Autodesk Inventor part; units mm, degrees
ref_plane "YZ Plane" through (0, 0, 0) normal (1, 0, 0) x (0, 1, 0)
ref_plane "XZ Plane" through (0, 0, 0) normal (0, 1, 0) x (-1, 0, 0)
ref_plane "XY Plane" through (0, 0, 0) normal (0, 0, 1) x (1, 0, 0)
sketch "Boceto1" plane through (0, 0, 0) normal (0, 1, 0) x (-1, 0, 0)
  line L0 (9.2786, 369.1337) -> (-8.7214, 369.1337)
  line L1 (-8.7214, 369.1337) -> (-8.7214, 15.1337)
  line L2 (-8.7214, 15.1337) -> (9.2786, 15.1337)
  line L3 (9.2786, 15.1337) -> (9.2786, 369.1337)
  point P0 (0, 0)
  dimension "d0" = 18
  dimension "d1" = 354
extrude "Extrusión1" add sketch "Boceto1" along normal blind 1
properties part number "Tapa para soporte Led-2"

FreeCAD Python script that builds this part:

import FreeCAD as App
import Part
import Sketcher

V = App.Vector

doc = App.newDocument("Part")
params = doc.addObject("Spreadsheet::Sheet", "Params")
for row, (alias, value) in enumerate([
    ("sketch1_width", "18 mm"),
    ("sketch1_height", "354 mm"),
    ("pad1_length", "1 mm"),
], start=1):
    params.set(f"A{row}", alias)
    params.set(f"B{row}", "=" + value)
    params.setAlias(f"B{row}", alias)

body = doc.addObject("PartDesign::Body", "Body")

sketch1 = body.newObject("Sketcher::SketchObject", "Sketch")
sketch1.AttachmentSupport = (doc.getObject("XZ_Plane"), [""])
sketch1.MapMode = "FlatFace"
sketch1.addGeometry(Part.LineSegment(V(-9.2786, 15.1337, 0), V(-9.2786, 369.1337, 0)), False)
sketch1.addGeometry(Part.LineSegment(V(-9.2786, 369.1337, 0), V(8.7214, 369.1337, 0)), False)
sketch1.addGeometry(Part.LineSegment(V(8.7214, 369.1337, 0), V(8.7214, 15.1337, 0)), False)
sketch1.addGeometry(Part.LineSegment(V(8.7214, 15.1337, 0), V(-9.2786, 15.1337, 0)), False)
sketch1.addConstraint(Sketcher.Constraint("Coincident", 0, 2, 1, 1))
sketch1.addConstraint(Sketcher.Constraint("Coincident", 1, 2, 2, 1))
sketch1.addConstraint(Sketcher.Constraint("Coincident", 2, 2, 3, 1))
sketch1.addConstraint(Sketcher.Constraint("Coincident", 3, 2, 0, 1))
sketch1.addConstraint(Sketcher.Constraint("Vertical", 0))
sketch1.addConstraint(Sketcher.Constraint("Horizontal", 1))
sketch1.addConstraint(Sketcher.Constraint("Vertical", 2))
sketch1.addConstraint(Sketcher.Constraint("Horizontal", 3))
sketch1.addConstraint(Sketcher.Constraint("DistanceX", 1, 1, 1, 2, 18.0))
sketch1.addConstraint(Sketcher.Constraint("DistanceY", 0, 1, 0, 2, 354.0))
sketch1.addConstraint(Sketcher.Constraint("DistanceX", 0, 2, -1, 1, 9.2786))
sketch1.addConstraint(Sketcher.Constraint("DistanceY", -1, 1, 0, 2, 369.1337))
sketch1.setExpression("Constraints[8]", "Params.sketch1_width")
sketch1.setExpression("Constraints[9]", "Params.sketch1_height")
pad1 = body.newObject("PartDesign::Pad", "Pad")
pad1.Profile = sketch1
pad1.setExpression("Length", "Params.pad1_length")
pad1.Reversed = True

doc.recompute()
